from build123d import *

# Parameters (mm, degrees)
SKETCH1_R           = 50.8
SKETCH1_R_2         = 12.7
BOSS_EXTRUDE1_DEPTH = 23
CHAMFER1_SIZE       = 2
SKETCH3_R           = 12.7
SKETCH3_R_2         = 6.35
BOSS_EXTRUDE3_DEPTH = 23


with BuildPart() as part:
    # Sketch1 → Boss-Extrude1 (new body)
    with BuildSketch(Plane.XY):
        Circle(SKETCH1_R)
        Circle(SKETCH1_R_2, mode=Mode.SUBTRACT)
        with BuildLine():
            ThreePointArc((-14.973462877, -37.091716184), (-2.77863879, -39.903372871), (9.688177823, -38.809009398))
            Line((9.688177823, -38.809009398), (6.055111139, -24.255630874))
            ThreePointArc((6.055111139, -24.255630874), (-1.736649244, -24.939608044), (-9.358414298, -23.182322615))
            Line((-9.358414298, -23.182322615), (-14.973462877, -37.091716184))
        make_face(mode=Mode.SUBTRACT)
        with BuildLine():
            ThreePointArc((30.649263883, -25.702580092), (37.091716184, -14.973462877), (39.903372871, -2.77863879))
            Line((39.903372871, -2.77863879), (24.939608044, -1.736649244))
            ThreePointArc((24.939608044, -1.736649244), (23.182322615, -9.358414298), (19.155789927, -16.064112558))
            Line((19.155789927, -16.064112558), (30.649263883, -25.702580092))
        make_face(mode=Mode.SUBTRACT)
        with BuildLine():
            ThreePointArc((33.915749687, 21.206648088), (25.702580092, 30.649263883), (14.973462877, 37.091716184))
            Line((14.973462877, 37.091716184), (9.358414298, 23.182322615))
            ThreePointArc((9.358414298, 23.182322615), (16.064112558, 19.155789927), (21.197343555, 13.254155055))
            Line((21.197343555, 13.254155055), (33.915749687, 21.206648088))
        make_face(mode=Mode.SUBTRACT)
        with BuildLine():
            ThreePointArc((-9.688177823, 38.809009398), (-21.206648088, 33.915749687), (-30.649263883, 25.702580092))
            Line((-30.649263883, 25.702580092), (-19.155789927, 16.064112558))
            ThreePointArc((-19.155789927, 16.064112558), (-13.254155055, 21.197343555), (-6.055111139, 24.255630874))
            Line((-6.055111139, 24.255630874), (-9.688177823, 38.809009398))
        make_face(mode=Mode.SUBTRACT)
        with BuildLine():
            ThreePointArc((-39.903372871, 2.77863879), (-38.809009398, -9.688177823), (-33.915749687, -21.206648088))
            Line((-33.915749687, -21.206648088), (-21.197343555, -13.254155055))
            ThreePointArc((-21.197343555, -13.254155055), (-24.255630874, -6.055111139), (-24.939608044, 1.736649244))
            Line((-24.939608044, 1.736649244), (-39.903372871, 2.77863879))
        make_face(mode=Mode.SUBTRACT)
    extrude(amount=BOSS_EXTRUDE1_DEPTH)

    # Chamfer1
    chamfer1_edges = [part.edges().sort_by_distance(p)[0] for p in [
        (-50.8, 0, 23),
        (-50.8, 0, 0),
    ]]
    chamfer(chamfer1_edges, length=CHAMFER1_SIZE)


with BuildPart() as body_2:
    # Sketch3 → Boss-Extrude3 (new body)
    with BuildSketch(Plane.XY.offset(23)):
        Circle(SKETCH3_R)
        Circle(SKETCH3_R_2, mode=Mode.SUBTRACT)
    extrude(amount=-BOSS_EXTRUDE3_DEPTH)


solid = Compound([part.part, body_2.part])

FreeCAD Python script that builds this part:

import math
import FreeCAD as App
import Part
import Sketcher
from FreeCAD import Vector


def edges_at(feature, points):
    """Names of the edges that pass closest to the given points."""
    edges = feature.Shape.Edges
    near = lambda p: min(range(len(edges)), key=lambda i: edges[i].distToShape(Part.Vertex(*p))[0])
    return sorted({f"Edge{near(p) + 1}" for p in points})

doc = App.newDocument("Part")
params = doc.addObject("Spreadsheet::Sheet", "Params")
for row, (alias, value) in enumerate([
    ("sketch1_radius", "40 mm"),
    ("sketch1_radius2", "25 mm"),
    ("sketch1_diameter", "101.6 mm"),
    ("sketch1_diameter2", "25.4 mm"),
    ("pad1_length", "23 mm"),
    ("chamfer_size", "2 mm"),
    ("sketch2_diameter", "25.4 mm"),
    ("sketch2_diameter2", "12.7 mm"),
    ("pad2_length", "23 mm"),
], start=1):
    params.set(f"A{row}", alias)
    params.set(f"B{row}", "=" + value)
    params.setAlias(f"B{row}", alias)

body = doc.addObject("PartDesign::Body", "Body")

# Sketch on XY plane
sketch1 = body.newObject("Sketcher::SketchObject", "Sketch")
sketch1.AttachmentSupport = (doc.getObject("XY_Plane"), [""])
sketch1.MapMode = "FlatFace"
sketch1.addGeometry([
    Part.Circle(Vector(0, 0, 0), Vector(0, 0, 1), 51),  # 0
    Part.ArcOfCircle(Part.Circle(Vector(0, 0, 0), Vector(0, 0, 1), 40), math.radians(-112), math.radians(-76)),  # 1
    Part.LineSegment(Vector(-15, -37, 0), Vector(-9, -23, 0)),  # 2
    Part.ArcOfCircle(Part.Circle(Vector(0, 0, 0), Vector(0, 0, 1), 25), math.radians(-112), math.radians(-76)),  # 3
    Part.LineSegment(Vector(6, -24, 0), Vector(10, -39, 0)),  # 4
    Part.ArcOfCircle(Part.Circle(Vector(0, 0, 0), Vector(0, 0, 1), 40), math.radians(176), math.radians(212)),  # 5
    Part.LineSegment(Vector(-40, 3, 0), Vector(-25, 2, 0)),  # 6
    Part.ArcOfCircle(Part.Circle(Vector(0, 0, 0), Vector(0, 0, 1), 25), math.radians(176), math.radians(212)),  # 7
    Part.LineSegment(Vector(-21, -13, 0), Vector(-34, -21, 0)),  # 8
    Part.ArcOfCircle(Part.Circle(Vector(0, 0, 0), Vector(0, 0, 1), 40), math.radians(-40), math.radians(-4)),  # 9
    Part.LineSegment(Vector(31, -26, 0), Vector(19, -16, 0)),  # 10
    Part.ArcOfCircle(Part.Circle(Vector(0, 0, 0), Vector(0, 0, 1), 25), math.radians(-40), math.radians(-4)),  # 11
    Part.LineSegment(Vector(25, -2, 0), Vector(40, -3, 0)),  # 12
    Part.ArcOfCircle(Part.Circle(Vector(0, 0, 0), Vector(0, 0, 1), 40), math.radians(104), math.radians(140)),  # 13
    Part.LineSegment(Vector(-10, 39, 0), Vector(-6, 24, 0)),  # 14
    Part.ArcOfCircle(Part.Circle(Vector(0, 0, 0), Vector(0, 0, 1), 25), math.radians(104), math.radians(140)),  # 15
    Part.LineSegment(Vector(-19, 16, 0), Vector(-31, 26, 0)),  # 16
    Part.Circle(Vector(0, 0, 0), Vector(0, 0, 1), 13),  # 17
    Part.ArcOfCircle(Part.Circle(Vector(0, 0, 0), Vector(0, 0, 1), 40), math.radians(32), math.radians(68)),  # 18
    Part.LineSegment(Vector(34, 21, 0), Vector(21, 13, 0)),  # 19
    Part.ArcOfCircle(Part.Circle(Vector(0, 0, 0), Vector(0, 0, 1), 25), math.radians(32), math.radians(68)),  # 20
    Part.LineSegment(Vector(9, 23, 0), Vector(15, 37, 0)),  # 21
], False)
sketch1.addConstraint([
    Sketcher.Constraint("Coincident", 1, 1, 2, 1),
    Sketcher.Constraint("Coincident", 2, 2, 3, 1),
    Sketcher.Constraint("Coincident", 3, 2, 4, 1),
    Sketcher.Constraint("Coincident", 4, 2, 1, 2),
    Sketcher.Constraint("Coincident", 5, 1, 6, 1),
    Sketcher.Constraint("Coincident", 6, 2, 7, 1),
    Sketcher.Constraint("Coincident", 7, 2, 8, 1),
    Sketcher.Constraint("Coincident", 8, 2, 5, 2),
    Sketcher.Constraint("Coincident", 9, 1, 10, 1),
    Sketcher.Constraint("Coincident", 10, 2, 11, 1),
    Sketcher.Constraint("Coincident", 11, 2, 12, 1),
    Sketcher.Constraint("Coincident", 12, 2, 9, 2),
    Sketcher.Constraint("Coincident", 13, 1, 14, 1),
    Sketcher.Constraint("Coincident", 14, 2, 15, 1),
    Sketcher.Constraint("Coincident", 15, 2, 16, 1),
    Sketcher.Constraint("Coincident", 16, 2, 13, 2),
    Sketcher.Constraint("Coincident", 18, 1, 19, 1),
    Sketcher.Constraint("Coincident", 19, 2, 20, 1),
    Sketcher.Constraint("Coincident", 20, 2, 21, 1),
    Sketcher.Constraint("Coincident", 21, 2, 18, 2),
    Sketcher.Constraint("Coincident", 0, 3, -1, 1),
    Sketcher.Constraint("Coincident", 1, 3, -1, 1),
    Sketcher.Constraint("Coincident", 3, 3, -1, 1),
    Sketcher.Constraint("Coincident", 5, 3, -1, 1),
    Sketcher.Constraint("Coincident", 7, 3, -1, 1),
    Sketcher.Constraint("Coincident", 9, 3, -1, 1),
    Sketcher.Constraint("Coincident", 11, 3, -1, 1),
    Sketcher.Constraint("Coincident", 13, 3, -1, 1),
    Sketcher.Constraint("Coincident", 15, 3, -1, 1),
    Sketcher.Constraint("Coincident", 17, 3, -1, 1),
    Sketcher.Constraint("Coincident", 18, 3, -1, 1),
    Sketcher.Constraint("Coincident", 20, 3, -1, 1),
    Sketcher.Constraint("Equal", 1, 5),
    Sketcher.Constraint("Equal", 3, 7),
    Sketcher.Constraint("Equal", 5, 9),
    Sketcher.Constraint("Equal", 7, 11),
    Sketcher.Constraint("Equal", 9, 13),
    Sketcher.Constraint("Equal", 11, 15),
    Sketcher.Constraint("Equal", 13, 18),
    Sketcher.Constraint("Equal", 15, 20),
    Sketcher.Constraint("Parallel", 6, 12),
    Sketcher.Constraint("Parallel", 4, 14),
    Sketcher.Constraint("Parallel", 10, 16),
    Sketcher.Constraint("Parallel", 8, 19),
    Sketcher.Constraint("Parallel", 2, 21),
    Sketcher.Constraint("Radius", 1, 40.0),
    Sketcher.Constraint("Radius", 3, 25.0),
    Sketcher.Constraint("Diameter", 0, 101.6),
    Sketcher.Constraint("Diameter", 17, 25.4),
    Sketcher.Constraint("DistanceX", -1, 1, 3, 2, 6.055111),
    Sketcher.Constraint("DistanceY", 4, 2, -1, 1, 38.809009),
    Sketcher.Constraint("DistanceY", -1, 1, 5, 1, 2.778639),
    Sketcher.Constraint("DistanceX", 6, 2, -1, 1, 24.939608),
    Sketcher.Constraint("DistanceX", 8, 2, -1, 1, 33.91575),
    Sketcher.Constraint("DistanceY", 9, 1, -1, 1, 25.70258),
    Sketcher.Constraint("DistanceX", -1, 1, 10, 2, 19.15579),
    Sketcher.Constraint("DistanceX", -1, 1, 11, 2, 24.939608),
    Sketcher.Constraint("DistanceY", -1, 1, 13, 1, 38.809009),
    Sketcher.Constraint("DistanceX", 15, 2, -1, 1, 19.15579),
    Sketcher.Constraint("DistanceX", -1, 1, 18, 1, 33.91575),
    Sketcher.Constraint("DistanceX", 1, 1, 2, 2, 5.615049),
    Sketcher.Constraint("DistanceY", 3, 2, 2, 2, 1.073308),
    Sketcher.Constraint("DistanceX", 7, 2, 2, 2, 11.838929),
    Sketcher.Constraint("DistanceY", 20, 2, 14, 2, 1.073308),
])
sketch1.setExpression("Constraints[45]", "Params.sketch1_radius")
sketch1.setExpression("Constraints[46]", "Params.sketch1_radius2")
sketch1.setExpression("Constraints[47]", "Params.sketch1_diameter")
sketch1.setExpression("Constraints[48]", "Params.sketch1_diameter2")
pad1 = body.newObject("PartDesign::Pad", "Pad")
pad1.Profile = sketch1
pad1.setExpression("Length", "Params.pad1_length")
doc.recompute()

chamfer = body.newObject("PartDesign::Chamfer", "Chamfer")
chamfer.Base = (pad1, edges_at(pad1, [(-50.8, 0, 23), (-50.8, 0, 0)]))
chamfer.setExpression("Size", "Params.chamfer_size")
body2 = doc.addObject("PartDesign::Body", "Body001")

# Sketch on XY plane
sketch2 = body2.newObject("Sketcher::SketchObject", "Sketch001")
sketch2.AttachmentSupport = (doc.getObject("XY_Plane001"), [""])
sketch2.MapMode = "FlatFace"
sketch2.AttachmentOffset = App.Placement(Vector(0, 0, 23), App.Rotation())
sketch2.addGeometry([
    Part.Circle(Vector(0, 0, 0), Vector(0, 0, 1), 13),
    Part.Circle(Vector(0, 0, 0), Vector(0, 0, 1), 6),
], False)
sketch2.addConstraint([
    Sketcher.Constraint("Coincident", 0, 3, -1, 1),
    Sketcher.Constraint("Coincident", 1, 3, -1, 1),
    Sketcher.Constraint("Diameter", 0, 25.4),
    Sketcher.Constraint("Diameter", 1, 12.7),
])
sketch2.setExpression("Constraints[2]", "Params.sketch2_diameter")
sketch2.setExpression("Constraints[3]", "Params.sketch2_diameter2")
pad2 = body2.newObject("PartDesign::Pad", "Pad001")
pad2.Profile = sketch2
pad2.setExpression("Length", "Params.pad2_length")
pad2.Reversed = True

doc.recompute()
